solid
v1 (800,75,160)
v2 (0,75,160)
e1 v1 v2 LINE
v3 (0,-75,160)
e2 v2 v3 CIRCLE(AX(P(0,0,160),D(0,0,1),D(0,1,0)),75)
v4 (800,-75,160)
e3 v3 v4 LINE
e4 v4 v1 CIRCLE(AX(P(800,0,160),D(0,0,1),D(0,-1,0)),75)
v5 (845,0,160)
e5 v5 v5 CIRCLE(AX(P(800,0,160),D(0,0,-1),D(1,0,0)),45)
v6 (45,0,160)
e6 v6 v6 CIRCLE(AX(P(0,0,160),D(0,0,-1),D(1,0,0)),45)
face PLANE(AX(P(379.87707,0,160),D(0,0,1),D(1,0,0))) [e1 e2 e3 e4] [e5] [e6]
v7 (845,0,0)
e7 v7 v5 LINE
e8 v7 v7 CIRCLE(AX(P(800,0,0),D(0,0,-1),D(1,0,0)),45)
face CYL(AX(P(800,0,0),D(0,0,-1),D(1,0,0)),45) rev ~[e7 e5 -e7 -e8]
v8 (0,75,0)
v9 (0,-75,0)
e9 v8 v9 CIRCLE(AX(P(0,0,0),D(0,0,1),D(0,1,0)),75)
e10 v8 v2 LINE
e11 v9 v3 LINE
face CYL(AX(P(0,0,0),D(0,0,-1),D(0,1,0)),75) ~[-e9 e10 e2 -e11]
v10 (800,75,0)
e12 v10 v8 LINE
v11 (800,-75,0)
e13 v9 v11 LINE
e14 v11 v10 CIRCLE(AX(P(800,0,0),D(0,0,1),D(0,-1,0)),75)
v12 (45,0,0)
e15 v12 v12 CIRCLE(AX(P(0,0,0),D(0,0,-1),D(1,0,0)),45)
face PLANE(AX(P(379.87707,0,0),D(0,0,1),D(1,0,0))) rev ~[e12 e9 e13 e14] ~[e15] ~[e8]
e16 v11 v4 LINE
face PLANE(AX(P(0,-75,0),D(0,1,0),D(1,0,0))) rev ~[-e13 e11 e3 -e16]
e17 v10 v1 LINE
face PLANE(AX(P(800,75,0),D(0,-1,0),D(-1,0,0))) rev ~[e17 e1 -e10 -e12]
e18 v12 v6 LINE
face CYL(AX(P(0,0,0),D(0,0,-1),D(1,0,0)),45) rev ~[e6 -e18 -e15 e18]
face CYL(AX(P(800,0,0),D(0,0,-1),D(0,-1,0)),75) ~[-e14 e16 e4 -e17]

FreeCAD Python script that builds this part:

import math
import FreeCAD as App
import Part
import Sketcher

V = App.Vector

doc = App.newDocument("Part")
body = doc.addObject("PartDesign::Body", "Body")

sketch1 = body.newObject("Sketcher::SketchObject", "Sketch")
sketch1.AttachmentSupport = (doc.getObject("XY_Plane"), [""])
sketch1.MapMode = "FlatFace"
sketch1.addGeometry([
    Part.LineSegment(V(800, 75, 0), V(0, 75, 0)),
    Part.ArcOfCircle(Part.Circle(V(0, 0, 0), V(0, 0, 1), 75), math.radians(90), math.radians(270)),
    Part.LineSegment(V(0, -75, 0), V(800, -75, 0)),
    Part.ArcOfCircle(Part.Circle(V(800, 0, 0), V(0, 0, 1), 75), math.radians(-90), math.radians(90)),
], False)
sketch1.addConstraint([
    Sketcher.Constraint("Tangent", 0, 2, 1, 1),
    Sketcher.Constraint("Tangent", 1, 2, 2, 1),
    Sketcher.Constraint("Tangent", 2, 2, 3, 1),
    Sketcher.Constraint("Tangent", 3, 2, 0, 1),
    Sketcher.Constraint("Horizontal", 0),
    Sketcher.Constraint("Horizontal", 2),
    Sketcher.Constraint("Coincident", 1, 3, -1, 1),
    Sketcher.Constraint("Radius", 1, 75.0),
    Sketcher.Constraint("DistanceX", 0, 2, 0, 1, 800.0),
])
pad1 = body.newObject("PartDesign::Pad", "Pad")
pad1.Profile = sketch1
pad1.Length = 160

sketch2 = body.newObject("Sketcher::SketchObject", "Sketch001")
sketch2.AttachmentSupport = (doc.getObject("XY_Plane"), [""])
sketch2.MapMode = "FlatFace"
sketch2.addGeometry([
    Part.Circle(V(0, 0, 0), V(0, 0, 1), 45),
    Part.Circle(V(800, 0, 0), V(0, 0, 1), 45),
], False)
sketch2.addConstraint([
    Sketcher.Constraint("Coincident", 0, 3, -1, 1),
    Sketcher.Constraint("Equal", 0, 1),
    Sketcher.Constraint("PointOnObject", 1, 3, -1),
    Sketcher.Constraint("Diameter", 0, 90.0),
    Sketcher.Constraint("DistanceX", -1, 1, 1, 3, 800.0),
])
pocket1 = body.newObject("PartDesign::Pocket", "Pocket")
pocket1.Profile = sketch2
pocket1.Length = 291
pocket1.Reversed = True

doc.recompute()
